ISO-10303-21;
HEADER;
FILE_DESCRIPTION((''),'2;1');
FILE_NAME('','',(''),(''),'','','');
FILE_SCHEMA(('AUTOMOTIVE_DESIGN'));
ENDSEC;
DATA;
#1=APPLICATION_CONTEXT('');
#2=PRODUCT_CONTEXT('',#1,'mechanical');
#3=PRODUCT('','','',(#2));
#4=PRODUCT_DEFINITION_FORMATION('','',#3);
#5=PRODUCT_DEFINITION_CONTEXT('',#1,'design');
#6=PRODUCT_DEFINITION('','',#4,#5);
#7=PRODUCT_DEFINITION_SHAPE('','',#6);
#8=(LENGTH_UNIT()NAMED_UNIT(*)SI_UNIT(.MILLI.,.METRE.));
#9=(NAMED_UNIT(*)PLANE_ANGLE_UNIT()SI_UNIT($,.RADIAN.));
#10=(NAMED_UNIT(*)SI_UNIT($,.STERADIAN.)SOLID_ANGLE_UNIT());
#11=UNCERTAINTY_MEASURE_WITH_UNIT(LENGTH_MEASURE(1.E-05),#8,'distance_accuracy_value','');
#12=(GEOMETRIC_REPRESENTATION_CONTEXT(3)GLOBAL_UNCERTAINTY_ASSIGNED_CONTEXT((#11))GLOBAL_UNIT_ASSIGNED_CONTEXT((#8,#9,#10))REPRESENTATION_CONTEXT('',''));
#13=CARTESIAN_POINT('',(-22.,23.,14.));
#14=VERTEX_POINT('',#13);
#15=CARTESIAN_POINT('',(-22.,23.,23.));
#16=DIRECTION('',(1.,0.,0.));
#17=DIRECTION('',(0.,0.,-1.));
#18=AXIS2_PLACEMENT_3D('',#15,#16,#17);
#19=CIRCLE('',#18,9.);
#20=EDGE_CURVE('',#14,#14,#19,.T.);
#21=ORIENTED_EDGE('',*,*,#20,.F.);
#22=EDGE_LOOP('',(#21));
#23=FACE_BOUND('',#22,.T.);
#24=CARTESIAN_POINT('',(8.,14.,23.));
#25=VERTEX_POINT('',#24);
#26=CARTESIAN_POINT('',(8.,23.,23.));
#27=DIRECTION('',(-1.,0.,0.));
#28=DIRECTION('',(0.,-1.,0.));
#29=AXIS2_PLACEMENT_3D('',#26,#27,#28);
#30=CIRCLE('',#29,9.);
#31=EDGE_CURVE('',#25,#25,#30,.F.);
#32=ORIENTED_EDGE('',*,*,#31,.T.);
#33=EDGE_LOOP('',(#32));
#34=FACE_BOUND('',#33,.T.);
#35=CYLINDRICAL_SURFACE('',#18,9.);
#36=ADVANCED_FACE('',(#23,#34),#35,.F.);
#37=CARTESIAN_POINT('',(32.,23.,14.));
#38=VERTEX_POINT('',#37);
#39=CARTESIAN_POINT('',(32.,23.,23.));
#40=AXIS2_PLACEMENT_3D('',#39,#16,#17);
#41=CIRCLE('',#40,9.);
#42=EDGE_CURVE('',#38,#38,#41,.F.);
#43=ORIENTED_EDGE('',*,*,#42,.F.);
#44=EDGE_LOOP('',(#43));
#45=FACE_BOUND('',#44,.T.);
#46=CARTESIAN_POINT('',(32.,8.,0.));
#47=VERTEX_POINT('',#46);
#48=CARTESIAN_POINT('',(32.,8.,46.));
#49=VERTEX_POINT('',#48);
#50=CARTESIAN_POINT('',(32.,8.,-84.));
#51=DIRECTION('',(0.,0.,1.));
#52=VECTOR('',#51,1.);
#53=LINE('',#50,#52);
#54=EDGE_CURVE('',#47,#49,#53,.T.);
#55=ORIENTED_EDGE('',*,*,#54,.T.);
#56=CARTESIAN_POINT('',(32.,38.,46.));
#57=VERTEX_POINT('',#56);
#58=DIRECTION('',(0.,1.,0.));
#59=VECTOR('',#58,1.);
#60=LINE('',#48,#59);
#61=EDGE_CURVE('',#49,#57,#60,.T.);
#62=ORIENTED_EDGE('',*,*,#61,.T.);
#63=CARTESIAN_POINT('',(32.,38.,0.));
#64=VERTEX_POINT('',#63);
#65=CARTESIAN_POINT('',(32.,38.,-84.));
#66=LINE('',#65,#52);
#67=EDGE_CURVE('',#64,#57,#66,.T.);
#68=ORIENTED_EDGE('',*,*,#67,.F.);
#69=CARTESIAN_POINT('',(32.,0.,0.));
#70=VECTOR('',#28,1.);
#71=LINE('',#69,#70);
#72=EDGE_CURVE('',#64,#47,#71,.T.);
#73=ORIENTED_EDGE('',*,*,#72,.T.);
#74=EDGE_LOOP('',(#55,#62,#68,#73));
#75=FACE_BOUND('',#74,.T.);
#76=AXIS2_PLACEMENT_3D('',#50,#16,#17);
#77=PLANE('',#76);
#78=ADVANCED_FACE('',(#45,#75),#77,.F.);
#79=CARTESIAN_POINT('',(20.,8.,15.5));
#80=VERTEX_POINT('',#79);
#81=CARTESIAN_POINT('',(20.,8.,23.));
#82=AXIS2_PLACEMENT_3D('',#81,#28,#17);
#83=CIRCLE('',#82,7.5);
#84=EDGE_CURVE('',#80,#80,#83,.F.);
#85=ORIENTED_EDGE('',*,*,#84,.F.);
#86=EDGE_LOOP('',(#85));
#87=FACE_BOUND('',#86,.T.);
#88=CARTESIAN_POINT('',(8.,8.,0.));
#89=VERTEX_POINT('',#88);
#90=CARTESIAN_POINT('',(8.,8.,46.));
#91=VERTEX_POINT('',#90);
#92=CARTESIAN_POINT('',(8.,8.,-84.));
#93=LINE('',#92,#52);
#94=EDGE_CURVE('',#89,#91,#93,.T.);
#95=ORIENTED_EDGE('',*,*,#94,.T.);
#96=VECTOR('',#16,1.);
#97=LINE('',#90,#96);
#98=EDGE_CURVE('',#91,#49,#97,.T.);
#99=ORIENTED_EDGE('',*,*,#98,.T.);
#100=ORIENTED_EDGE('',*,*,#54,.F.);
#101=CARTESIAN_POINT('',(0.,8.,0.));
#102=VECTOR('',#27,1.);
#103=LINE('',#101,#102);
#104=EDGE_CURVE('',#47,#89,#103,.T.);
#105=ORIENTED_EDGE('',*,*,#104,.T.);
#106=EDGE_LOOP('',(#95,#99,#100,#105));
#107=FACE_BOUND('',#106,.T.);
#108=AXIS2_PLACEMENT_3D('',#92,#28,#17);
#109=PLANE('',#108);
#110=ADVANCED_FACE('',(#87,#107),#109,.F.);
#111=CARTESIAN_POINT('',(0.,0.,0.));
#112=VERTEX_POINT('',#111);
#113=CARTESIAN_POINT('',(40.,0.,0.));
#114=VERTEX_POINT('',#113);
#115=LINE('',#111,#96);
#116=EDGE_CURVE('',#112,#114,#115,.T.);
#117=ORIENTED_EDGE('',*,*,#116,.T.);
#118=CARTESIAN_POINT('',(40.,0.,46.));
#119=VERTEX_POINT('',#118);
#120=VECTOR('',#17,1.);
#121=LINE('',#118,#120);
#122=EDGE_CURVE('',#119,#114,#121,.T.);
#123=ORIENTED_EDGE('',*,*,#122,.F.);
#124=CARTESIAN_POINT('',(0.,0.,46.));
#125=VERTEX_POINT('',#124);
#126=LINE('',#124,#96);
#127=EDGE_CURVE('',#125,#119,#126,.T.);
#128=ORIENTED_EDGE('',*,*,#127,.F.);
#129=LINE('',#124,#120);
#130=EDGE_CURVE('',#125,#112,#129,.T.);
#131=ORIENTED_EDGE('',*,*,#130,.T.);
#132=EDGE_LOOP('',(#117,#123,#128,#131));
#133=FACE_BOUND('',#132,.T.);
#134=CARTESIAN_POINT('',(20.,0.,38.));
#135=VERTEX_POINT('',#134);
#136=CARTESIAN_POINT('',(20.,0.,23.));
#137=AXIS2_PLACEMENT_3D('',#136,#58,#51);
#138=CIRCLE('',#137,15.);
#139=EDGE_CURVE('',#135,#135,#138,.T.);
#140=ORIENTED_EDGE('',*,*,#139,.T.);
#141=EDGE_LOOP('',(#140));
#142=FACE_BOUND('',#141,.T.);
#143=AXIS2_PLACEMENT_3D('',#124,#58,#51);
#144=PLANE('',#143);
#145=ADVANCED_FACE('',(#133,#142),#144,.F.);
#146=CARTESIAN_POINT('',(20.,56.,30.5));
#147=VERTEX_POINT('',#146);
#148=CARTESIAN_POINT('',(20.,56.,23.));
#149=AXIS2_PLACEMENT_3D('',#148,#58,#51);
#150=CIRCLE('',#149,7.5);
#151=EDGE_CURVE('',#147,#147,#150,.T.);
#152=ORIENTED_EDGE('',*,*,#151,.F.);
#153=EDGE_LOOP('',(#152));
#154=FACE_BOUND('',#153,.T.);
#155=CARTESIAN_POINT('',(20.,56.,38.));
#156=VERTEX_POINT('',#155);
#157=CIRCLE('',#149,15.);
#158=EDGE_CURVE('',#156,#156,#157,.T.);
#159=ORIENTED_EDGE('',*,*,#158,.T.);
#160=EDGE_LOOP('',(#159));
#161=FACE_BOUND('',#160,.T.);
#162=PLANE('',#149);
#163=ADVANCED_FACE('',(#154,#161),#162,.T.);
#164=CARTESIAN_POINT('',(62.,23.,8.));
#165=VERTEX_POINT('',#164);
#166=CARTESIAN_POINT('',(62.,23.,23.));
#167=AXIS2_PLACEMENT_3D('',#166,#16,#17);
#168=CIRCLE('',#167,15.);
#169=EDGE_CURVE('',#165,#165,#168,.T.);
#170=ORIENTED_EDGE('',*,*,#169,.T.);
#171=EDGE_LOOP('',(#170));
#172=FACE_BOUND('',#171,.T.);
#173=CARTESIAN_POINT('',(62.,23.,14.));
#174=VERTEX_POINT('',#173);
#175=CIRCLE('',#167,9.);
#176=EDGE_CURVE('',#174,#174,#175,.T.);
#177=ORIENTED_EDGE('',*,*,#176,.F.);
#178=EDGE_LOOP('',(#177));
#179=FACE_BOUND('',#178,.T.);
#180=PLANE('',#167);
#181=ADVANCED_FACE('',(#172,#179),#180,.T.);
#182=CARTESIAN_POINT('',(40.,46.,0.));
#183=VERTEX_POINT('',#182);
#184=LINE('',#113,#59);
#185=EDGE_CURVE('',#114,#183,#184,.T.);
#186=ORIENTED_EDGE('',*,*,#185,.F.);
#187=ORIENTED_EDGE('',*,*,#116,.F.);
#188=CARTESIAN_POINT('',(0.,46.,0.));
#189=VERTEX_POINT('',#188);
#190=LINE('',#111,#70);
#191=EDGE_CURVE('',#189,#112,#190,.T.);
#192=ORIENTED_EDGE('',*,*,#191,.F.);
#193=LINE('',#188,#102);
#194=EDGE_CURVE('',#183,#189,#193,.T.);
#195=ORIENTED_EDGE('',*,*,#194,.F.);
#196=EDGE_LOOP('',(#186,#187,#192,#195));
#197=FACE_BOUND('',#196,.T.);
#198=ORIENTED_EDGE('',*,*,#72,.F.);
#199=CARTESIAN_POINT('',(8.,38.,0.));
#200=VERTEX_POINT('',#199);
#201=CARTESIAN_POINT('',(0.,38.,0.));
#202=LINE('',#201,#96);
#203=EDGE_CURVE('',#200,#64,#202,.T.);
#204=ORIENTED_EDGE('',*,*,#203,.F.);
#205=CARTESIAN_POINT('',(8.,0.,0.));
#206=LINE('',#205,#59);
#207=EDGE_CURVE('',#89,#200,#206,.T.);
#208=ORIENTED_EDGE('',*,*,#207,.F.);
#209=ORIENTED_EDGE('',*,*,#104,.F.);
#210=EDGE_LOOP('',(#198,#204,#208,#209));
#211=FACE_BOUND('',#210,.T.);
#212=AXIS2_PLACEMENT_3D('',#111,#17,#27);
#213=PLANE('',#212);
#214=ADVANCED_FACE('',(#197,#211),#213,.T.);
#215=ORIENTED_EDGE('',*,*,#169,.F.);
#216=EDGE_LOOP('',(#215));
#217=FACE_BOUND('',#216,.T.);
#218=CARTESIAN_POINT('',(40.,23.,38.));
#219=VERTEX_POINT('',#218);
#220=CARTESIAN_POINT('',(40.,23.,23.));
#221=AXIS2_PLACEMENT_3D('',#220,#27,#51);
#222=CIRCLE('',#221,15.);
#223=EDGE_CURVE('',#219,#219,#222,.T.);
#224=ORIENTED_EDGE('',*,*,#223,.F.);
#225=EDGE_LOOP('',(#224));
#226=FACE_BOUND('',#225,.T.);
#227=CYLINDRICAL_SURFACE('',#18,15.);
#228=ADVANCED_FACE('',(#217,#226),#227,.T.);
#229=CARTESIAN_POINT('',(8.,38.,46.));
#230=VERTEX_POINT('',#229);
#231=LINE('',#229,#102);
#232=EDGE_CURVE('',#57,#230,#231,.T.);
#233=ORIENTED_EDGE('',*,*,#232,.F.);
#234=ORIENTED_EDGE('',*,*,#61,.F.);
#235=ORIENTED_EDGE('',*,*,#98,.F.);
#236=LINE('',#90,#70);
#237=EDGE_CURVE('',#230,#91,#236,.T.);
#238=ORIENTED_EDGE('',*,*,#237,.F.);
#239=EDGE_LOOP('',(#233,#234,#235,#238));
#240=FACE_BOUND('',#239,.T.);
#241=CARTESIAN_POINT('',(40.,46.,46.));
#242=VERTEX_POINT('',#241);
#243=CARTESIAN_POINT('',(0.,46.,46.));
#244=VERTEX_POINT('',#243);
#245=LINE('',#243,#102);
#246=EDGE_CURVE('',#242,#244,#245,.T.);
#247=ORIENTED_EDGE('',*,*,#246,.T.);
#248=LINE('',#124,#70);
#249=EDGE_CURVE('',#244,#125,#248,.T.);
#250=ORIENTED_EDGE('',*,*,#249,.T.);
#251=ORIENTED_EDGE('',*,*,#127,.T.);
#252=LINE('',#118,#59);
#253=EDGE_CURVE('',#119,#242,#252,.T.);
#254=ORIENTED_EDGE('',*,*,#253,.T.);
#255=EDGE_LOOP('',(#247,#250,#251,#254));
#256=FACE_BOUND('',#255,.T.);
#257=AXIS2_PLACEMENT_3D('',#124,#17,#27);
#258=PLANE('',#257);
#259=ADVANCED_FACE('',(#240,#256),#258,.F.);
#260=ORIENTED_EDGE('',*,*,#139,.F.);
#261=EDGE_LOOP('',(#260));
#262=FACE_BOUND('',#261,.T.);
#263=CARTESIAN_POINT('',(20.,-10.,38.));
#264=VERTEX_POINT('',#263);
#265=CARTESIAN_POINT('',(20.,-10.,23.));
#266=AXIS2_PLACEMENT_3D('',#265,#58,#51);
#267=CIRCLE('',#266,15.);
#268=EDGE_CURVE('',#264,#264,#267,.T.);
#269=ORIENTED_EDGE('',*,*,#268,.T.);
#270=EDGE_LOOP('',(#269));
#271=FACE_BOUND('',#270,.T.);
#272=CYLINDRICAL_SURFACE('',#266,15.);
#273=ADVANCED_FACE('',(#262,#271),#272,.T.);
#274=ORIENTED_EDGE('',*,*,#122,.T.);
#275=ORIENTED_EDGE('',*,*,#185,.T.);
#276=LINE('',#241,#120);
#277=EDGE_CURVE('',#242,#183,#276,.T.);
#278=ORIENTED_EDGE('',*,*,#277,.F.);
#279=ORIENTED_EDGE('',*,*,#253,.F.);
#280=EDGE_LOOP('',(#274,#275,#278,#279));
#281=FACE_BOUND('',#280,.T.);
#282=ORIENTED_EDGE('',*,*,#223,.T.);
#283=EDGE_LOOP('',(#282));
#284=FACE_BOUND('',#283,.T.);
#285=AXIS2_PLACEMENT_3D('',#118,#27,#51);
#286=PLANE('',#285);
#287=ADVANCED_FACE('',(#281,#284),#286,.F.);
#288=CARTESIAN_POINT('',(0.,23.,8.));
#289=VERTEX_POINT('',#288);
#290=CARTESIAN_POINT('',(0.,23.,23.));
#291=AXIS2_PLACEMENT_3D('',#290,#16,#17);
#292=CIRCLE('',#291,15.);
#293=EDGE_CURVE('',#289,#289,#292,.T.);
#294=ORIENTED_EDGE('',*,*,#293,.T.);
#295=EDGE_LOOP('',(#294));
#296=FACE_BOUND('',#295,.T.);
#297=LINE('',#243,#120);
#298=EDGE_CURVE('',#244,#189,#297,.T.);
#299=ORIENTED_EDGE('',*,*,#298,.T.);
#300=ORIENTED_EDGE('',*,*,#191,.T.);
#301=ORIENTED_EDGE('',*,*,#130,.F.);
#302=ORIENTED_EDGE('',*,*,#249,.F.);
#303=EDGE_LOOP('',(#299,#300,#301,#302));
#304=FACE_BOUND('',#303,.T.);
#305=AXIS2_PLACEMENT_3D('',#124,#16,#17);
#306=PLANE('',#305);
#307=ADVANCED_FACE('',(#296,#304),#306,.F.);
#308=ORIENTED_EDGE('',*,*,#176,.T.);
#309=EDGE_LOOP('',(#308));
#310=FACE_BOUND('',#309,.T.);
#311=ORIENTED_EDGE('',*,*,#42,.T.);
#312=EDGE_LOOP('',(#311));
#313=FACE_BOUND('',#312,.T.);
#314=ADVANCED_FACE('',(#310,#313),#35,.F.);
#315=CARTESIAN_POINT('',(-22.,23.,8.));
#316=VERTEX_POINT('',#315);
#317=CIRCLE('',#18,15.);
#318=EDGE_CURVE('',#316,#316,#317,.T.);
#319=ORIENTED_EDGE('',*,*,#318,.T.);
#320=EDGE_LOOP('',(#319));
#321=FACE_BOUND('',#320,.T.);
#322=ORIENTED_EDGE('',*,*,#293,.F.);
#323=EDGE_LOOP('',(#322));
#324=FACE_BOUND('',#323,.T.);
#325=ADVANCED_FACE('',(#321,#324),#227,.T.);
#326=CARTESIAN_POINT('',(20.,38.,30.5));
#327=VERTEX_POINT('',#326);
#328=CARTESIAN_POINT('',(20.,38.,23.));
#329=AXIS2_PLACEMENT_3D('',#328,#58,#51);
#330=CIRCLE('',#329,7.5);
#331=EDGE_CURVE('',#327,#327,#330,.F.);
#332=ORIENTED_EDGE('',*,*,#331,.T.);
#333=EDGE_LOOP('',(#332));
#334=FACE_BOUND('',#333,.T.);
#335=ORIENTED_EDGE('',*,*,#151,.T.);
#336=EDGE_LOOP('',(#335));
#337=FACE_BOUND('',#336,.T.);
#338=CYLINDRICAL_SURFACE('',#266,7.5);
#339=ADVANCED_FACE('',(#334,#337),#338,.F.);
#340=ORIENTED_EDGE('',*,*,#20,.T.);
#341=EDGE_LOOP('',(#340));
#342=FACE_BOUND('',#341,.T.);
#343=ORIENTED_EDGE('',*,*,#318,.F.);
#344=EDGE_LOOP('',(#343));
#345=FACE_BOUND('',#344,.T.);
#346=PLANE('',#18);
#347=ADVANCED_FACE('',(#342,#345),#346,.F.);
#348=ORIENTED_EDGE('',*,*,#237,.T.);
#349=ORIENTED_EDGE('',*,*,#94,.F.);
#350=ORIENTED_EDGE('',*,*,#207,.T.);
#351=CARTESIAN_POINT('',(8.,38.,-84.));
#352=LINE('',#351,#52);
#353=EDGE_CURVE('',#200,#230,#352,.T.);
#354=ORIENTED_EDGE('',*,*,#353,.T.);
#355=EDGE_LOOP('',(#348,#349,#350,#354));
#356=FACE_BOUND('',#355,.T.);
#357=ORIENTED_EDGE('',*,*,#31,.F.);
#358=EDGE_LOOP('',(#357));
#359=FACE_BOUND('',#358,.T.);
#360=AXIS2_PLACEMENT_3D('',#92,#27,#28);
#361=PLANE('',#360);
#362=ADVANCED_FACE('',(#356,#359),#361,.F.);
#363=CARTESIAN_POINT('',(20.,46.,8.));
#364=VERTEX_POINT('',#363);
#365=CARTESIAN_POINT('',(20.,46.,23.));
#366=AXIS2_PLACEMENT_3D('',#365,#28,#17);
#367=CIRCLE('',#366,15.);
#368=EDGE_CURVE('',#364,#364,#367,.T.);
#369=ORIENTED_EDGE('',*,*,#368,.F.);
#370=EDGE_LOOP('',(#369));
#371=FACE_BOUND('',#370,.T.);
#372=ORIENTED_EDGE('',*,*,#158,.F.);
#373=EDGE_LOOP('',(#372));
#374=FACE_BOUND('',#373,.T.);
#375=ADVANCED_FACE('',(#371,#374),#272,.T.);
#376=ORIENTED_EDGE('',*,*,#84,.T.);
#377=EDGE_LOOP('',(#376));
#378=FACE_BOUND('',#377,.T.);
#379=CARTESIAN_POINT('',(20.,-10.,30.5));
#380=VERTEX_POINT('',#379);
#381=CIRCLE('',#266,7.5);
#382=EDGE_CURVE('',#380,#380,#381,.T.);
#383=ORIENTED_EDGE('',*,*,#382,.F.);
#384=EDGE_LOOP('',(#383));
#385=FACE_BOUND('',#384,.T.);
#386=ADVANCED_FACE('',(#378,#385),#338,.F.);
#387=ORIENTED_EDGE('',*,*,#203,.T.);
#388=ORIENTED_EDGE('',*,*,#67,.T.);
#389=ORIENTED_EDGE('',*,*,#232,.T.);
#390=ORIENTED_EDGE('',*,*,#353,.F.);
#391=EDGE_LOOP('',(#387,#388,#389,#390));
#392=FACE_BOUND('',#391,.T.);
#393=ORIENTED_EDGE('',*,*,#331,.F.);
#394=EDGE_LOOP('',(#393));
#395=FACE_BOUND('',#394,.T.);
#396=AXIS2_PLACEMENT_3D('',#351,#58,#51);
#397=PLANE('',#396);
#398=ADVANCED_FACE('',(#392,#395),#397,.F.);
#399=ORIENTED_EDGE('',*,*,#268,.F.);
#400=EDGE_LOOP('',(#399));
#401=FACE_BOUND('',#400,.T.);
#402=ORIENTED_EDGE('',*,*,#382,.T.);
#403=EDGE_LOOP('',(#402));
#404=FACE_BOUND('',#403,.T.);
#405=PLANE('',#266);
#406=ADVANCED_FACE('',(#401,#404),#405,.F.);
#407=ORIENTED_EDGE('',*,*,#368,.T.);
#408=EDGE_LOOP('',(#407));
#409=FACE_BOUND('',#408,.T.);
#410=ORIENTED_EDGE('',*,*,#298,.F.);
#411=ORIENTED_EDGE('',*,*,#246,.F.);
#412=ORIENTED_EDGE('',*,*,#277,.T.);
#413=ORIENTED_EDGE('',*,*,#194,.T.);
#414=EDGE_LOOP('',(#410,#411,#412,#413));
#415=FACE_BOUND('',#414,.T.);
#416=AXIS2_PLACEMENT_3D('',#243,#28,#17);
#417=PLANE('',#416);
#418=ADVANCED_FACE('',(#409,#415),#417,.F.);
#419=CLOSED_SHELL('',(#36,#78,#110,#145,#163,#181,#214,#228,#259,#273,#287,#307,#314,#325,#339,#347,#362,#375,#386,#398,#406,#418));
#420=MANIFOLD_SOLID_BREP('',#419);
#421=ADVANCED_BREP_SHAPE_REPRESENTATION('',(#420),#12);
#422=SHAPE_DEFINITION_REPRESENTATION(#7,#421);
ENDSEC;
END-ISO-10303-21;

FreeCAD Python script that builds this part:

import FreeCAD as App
import Part
import Sketcher


def add_polygon(sketch, points):
    """Adds a closed chain of lines whose ends are joined by coincident constraints."""
    first, n = sketch.GeometryCount, len(points)
    for a, b in zip(points, points[1:] + points[:1]):
        sketch.addGeometry(Part.LineSegment(App.Vector(*a, 0), App.Vector(*b, 0)), False)
    for i in range(n):
        sketch.addConstraint(Sketcher.Constraint("Coincident", first + i, 2, first + (i + 1) % n, 1))

doc = App.newDocument("Part")
body = doc.addObject("PartDesign::Body", "Body")

# Sketch on XY plane
sketch1 = body.newObject("Sketcher::SketchObject", "Sketch")
sketch1.AttachmentSupport = (doc.getObject("XY_Plane"), [""])
sketch1.MapMode = "FlatFace"
add_polygon(sketch1, [(0, 46), (0, 0), (40, 0), (40, 46)])  # lines 0-3
sketch1.addConstraint([
    Sketcher.Constraint("Vertical", 0),
    Sketcher.Constraint("Horizontal", 1),
    Sketcher.Constraint("Vertical", 2),
    Sketcher.Constraint("Horizontal", 3),
    Sketcher.Constraint("Coincident", 0, 2, -1, 1),
    Sketcher.Constraint("DistanceX", 1, 1, 1, 2, 40.0),
    Sketcher.Constraint("DistanceY", 0, 2, 0, 1, 46.0),
])
pad1 = body.newObject("PartDesign::Pad", "Pad")
pad1.Profile = sketch1
pad1.Length = 46

# Sketch on XZ plane
sketch2 = body.newObject("Sketcher::SketchObject", "Sketch001")
sketch2.AttachmentSupport = (doc.getObject("XZ_Plane"), [""])
sketch2.MapMode = "FlatFace"
sketch2.AttachmentOffset = App.Placement(App.Vector(0, 0, -46), App.Rotation())
sketch2.addGeometry([
    Part.Circle(App.Vector(20, 23, 0), App.Vector(0, 0, 1), 15),
    Part.Circle(App.Vector(20, 23, 0), App.Vector(0, 0, 1), 8),
], False)
sketch2.addConstraint([
    Sketcher.Constraint("Coincident", 1, 3, 0, 3),
    Sketcher.Constraint("Diameter", 0, 30.0),
    Sketcher.Constraint("Diameter", 1, 15.0),
    Sketcher.Constraint("DistanceX", -1, 1, 0, 3, 20.0),
    Sketcher.Constraint("DistanceY", -1, 1, 0, 3, 23.0),
])
pad2 = body.newObject("PartDesign::Pad", "Pad001")
pad2.Profile = sketch2
pad2.Type = "TwoLengths"
pad2.Length = 10
pad2.Length2 = 56
pad2.Reversed = True

# Sketch on YZ plane
sketch3 = body.newObject("Sketcher::SketchObject", "Sketch002")
sketch3.AttachmentSupport = (doc.getObject("YZ_Plane"), [""])
sketch3.MapMode = "FlatFace"
sketch3.AttachmentOffset = App.Placement(App.Vector(0, 0, 40), App.Rotation())
sketch3.addGeometry([
    Part.Circle(App.Vector(23, 23, 0), App.Vector(0, 0, 1), 15),
    Part.Circle(App.Vector(23, 23, 0), App.Vector(0, 0, 1), 9),
], False)
sketch3.addConstraint([
    Sketcher.Constraint("Coincident", 1, 3, 0, 3),
    Sketcher.Constraint("Diameter", 0, 30.0),
    Sketcher.Constraint("Diameter", 1, 18.0),
    Sketcher.Constraint("DistanceX", -1, 1, 0, 3, 23.0),
    Sketcher.Constraint("DistanceY", -1, 1, 0, 3, 23.0),
])
pad3 = body.newObject("PartDesign::Pad", "Pad002")
pad3.Profile = sketch3
pad3.Type = "TwoLengths"
pad3.Length = 22
pad3.Length2 = 62

# Sketch on YZ plane
sketch4 = body.newObject("Sketcher::SketchObject", "Sketch003")
sketch4.AttachmentSupport = (doc.getObject("YZ_Plane"), [""])
sketch4.MapMode = "FlatFace"
sketch4.AttachmentOffset = App.Placement(App.Vector(0, 0, 40), App.Rotation())
sketch4.addGeometry(Part.Circle(App.Vector(23, 23, 0), App.Vector(0, 0, 1), 9), False)
sketch4.addConstraint([
    Sketcher.Constraint("Diameter", 0, 18.0),
    Sketcher.Constraint("DistanceX", -1, 1, 0, 3, 23.0),
    Sketcher.Constraint("DistanceY", -1, 1, 0, 3, 23.0),
])
pocket1 = body.newObject("PartDesign::Pocket", "Pocket")
pocket1.Profile = sketch4
pocket1.Length = 130

# Sketch on XZ plane
sketch5 = body.newObject("Sketcher::SketchObject", "Sketch004")
sketch5.AttachmentSupport = (doc.getObject("XZ_Plane"), [""])
sketch5.MapMode = "FlatFace"
sketch5.AttachmentOffset = App.Placement(App.Vector(0, 0, -46), App.Rotation())
sketch5.addGeometry(Part.Circle(App.Vector(20, 23, 0), App.Vector(0, 0, 1), 8), False)
sketch5.addConstraint([
    Sketcher.Constraint("Diameter", 0, 15.0),
    Sketcher.Constraint("DistanceX", -1, 1, 0, 3, 20.0),
    Sketcher.Constraint("DistanceY", -1, 1, 0, 3, 23.0),
])
pocket2 = body.newObject("PartDesign::Pocket", "Pocket001")
pocket2.Profile = sketch5
pocket2.Length = 130
pocket2.Reversed = True

# Sketch on XY plane
sketch6 = body.newObject("Sketcher::SketchObject", "Sketch005")
sketch6.AttachmentSupport = (doc.getObject("XY_Plane"), [""])
sketch6.MapMode = "FlatFace"
sketch6.AttachmentOffset = App.Placement(App.Vector(0, 0, 46), App.Rotation())
add_polygon(sketch6, [(8, 38), (8, 8), (32, 8), (32, 38)])  # lines 0-3
sketch6.addConstraint([
    Sketcher.Constraint("Vertical", 0),
    Sketcher.Constraint("Horizontal", 1),
    Sketcher.Constraint("Vertical", 2),
    Sketcher.Constraint("Horizontal", 3),
    Sketcher.Constraint("DistanceX", 1, 1, 1, 2, 24.0),
    Sketcher.Constraint("DistanceY", 0, 2, 0, 1, 30.0),
    Sketcher.Constraint("DistanceX", -1, 1, 0, 2, 8.0),
    Sketcher.Constraint("DistanceY", -1, 1, 0, 2, 8.0),
])
pocket3 = body.newObject("PartDesign::Pocket", "Pocket002")
pocket3.Profile = sketch6
pocket3.Length = 130

doc.recompute()
